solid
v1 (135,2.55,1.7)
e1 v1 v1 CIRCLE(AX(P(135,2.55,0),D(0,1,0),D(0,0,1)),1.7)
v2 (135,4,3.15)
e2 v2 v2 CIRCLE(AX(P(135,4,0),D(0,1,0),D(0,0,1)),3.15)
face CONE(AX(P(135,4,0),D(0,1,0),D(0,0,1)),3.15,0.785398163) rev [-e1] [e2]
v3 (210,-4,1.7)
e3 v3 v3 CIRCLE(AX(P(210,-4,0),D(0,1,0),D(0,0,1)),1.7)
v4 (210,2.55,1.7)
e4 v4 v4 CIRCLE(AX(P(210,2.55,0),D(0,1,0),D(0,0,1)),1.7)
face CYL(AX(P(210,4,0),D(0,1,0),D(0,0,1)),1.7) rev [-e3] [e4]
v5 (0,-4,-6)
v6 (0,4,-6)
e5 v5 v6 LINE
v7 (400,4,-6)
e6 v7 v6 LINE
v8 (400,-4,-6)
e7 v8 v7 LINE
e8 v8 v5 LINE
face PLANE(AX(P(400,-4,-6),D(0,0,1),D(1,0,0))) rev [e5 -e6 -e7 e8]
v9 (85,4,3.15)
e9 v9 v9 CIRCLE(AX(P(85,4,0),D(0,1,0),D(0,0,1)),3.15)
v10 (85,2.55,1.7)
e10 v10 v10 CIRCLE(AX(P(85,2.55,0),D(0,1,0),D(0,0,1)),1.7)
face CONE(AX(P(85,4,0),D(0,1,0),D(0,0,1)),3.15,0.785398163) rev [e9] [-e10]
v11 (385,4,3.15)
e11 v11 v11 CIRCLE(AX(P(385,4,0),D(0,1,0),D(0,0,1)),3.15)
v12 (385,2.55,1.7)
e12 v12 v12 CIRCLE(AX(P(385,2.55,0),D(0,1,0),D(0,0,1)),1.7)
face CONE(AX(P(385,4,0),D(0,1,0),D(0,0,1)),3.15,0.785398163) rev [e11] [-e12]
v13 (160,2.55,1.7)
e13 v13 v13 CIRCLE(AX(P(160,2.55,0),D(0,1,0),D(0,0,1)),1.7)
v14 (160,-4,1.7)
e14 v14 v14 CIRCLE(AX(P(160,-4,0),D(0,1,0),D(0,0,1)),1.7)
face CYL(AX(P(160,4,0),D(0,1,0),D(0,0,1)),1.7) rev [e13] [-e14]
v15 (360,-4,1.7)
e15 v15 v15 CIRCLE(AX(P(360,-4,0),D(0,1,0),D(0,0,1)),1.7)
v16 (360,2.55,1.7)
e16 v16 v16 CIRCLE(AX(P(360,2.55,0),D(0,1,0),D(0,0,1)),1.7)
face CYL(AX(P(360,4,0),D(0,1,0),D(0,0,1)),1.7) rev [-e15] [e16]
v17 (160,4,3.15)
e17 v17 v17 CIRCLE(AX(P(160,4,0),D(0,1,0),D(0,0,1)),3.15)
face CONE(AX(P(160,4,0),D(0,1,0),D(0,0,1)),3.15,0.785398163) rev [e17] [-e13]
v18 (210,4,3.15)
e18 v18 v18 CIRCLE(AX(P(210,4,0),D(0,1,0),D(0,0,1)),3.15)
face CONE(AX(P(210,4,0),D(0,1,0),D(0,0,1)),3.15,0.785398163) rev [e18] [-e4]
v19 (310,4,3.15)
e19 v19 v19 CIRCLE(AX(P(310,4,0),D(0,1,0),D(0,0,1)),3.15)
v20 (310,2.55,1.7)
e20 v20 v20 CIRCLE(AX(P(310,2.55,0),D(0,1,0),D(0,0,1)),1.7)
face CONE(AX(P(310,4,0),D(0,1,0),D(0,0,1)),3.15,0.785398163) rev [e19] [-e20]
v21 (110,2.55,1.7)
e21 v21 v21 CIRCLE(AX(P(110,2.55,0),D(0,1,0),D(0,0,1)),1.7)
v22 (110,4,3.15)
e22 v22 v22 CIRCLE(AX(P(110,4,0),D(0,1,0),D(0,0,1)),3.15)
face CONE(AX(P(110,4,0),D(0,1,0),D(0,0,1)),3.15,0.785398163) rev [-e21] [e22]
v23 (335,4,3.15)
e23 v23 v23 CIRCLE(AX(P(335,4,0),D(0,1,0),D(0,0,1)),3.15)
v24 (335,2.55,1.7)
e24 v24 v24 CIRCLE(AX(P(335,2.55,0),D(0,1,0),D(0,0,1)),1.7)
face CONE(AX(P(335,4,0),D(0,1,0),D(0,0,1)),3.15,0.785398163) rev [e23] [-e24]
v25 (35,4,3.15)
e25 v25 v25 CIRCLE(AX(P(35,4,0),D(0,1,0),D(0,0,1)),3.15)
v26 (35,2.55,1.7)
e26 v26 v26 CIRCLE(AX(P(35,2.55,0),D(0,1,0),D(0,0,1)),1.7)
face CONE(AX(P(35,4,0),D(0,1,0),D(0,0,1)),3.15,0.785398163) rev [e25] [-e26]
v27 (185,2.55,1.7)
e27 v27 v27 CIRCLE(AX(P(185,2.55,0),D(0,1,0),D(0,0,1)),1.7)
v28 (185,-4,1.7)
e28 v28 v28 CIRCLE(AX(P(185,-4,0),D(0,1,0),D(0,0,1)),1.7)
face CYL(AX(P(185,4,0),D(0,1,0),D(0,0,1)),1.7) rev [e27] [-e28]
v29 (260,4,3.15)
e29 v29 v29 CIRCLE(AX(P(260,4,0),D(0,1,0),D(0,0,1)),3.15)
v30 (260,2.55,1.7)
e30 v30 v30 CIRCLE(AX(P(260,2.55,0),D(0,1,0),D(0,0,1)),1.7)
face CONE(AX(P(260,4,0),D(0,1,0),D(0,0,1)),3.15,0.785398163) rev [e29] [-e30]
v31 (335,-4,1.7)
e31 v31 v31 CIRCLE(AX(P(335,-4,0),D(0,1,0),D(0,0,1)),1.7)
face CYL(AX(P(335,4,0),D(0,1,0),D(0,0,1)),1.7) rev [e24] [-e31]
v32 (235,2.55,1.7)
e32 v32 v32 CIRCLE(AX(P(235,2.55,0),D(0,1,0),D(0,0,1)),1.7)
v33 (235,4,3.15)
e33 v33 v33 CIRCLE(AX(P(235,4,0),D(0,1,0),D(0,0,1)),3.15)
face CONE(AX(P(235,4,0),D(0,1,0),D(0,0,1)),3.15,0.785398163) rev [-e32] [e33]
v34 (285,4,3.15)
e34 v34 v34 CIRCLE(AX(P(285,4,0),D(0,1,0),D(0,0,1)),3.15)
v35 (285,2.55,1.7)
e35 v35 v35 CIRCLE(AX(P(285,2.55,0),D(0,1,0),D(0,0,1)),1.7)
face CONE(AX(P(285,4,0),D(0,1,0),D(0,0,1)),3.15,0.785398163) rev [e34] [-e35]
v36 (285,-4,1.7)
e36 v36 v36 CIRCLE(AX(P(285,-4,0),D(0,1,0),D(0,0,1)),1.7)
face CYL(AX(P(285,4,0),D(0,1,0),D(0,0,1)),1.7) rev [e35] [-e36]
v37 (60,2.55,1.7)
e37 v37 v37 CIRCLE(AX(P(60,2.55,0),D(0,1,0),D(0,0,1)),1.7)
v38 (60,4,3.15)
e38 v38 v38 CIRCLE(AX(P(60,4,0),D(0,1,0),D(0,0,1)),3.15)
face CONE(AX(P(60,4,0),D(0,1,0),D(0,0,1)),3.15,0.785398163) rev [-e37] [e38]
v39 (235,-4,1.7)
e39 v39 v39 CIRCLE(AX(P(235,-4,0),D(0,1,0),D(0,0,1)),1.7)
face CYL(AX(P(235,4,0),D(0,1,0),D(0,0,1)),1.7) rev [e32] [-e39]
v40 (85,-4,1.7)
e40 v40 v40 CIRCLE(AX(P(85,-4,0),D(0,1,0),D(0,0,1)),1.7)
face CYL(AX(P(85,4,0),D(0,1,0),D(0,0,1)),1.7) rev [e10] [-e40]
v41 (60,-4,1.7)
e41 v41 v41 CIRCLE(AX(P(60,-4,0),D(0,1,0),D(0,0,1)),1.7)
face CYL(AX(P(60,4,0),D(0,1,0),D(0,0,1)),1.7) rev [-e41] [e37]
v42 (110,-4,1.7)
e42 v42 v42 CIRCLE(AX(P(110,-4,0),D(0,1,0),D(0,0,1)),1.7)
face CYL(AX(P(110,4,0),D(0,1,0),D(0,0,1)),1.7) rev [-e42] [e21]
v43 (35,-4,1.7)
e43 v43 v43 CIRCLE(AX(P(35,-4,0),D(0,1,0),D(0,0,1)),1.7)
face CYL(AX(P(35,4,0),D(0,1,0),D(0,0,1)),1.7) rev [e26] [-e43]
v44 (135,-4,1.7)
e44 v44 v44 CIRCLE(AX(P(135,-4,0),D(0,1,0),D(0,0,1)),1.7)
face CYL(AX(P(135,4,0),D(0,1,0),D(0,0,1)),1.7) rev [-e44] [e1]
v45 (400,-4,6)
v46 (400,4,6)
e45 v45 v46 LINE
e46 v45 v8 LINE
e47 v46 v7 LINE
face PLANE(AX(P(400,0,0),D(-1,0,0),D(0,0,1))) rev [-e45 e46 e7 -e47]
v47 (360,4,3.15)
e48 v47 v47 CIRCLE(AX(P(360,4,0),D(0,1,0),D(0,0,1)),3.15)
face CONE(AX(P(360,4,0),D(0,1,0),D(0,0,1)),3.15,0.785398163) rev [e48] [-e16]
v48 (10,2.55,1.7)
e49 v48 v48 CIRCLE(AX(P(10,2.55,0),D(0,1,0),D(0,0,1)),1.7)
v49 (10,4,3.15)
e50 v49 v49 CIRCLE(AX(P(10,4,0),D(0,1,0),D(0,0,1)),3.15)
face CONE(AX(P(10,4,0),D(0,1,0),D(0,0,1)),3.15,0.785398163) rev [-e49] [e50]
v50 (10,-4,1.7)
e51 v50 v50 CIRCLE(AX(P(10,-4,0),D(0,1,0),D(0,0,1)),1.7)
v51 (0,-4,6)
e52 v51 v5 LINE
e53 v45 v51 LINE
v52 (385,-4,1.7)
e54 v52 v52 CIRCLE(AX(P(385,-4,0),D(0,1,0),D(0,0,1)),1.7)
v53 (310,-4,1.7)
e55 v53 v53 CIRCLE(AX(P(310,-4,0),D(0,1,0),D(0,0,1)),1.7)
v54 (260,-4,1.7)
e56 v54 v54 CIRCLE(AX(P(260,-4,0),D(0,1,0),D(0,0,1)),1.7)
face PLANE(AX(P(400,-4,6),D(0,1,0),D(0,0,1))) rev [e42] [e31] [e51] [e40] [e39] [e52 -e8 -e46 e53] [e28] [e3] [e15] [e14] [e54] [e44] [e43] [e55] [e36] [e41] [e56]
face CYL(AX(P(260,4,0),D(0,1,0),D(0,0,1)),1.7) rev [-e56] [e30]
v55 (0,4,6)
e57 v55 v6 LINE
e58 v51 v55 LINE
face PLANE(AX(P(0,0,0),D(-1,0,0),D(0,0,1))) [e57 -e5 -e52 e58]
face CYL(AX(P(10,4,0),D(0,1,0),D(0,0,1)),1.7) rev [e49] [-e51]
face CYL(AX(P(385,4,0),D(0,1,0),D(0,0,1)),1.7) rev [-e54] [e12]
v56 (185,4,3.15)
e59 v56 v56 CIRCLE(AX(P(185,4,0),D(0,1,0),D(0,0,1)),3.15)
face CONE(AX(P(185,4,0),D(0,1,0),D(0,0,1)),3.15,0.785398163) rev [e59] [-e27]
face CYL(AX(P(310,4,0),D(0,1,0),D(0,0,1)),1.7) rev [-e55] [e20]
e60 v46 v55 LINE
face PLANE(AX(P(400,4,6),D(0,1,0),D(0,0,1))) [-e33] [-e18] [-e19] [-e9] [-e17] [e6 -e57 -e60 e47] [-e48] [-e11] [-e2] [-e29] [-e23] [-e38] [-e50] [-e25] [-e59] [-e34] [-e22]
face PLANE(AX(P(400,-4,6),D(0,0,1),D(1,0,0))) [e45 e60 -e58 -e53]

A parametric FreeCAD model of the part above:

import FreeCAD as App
import Part
import Sketcher
from FreeCAD import Vector
Q = App.Units.Quantity

doc = App.newDocument("Part")
params = doc.addObject("Spreadsheet::Sheet", "Params")
for row, (alias, value) in enumerate([
    ("sketch1_width", "8 mm"),
    ("sketch1_height", "12 mm"),
    ("pad1_length", "400 mm"),
    ("sketch2_diameter", "3.4 mm"),
    ("hole_diameter", "3.4 mm"),
    ("hole_csink_diameter", "6.3 mm"),
    ("linearpattern_pitch", "25 mm"),
], start=1):
    params.set(f"A{row}", alias)
    params.set(f"B{row}", "=" + value)
    params.setAlias(f"B{row}", alias)

body = doc.addObject("PartDesign::Body", "Body")

# Sketch on YZ plane
sketch1 = body.newObject("Sketcher::SketchObject", "Sketch")
sketch1.AttachmentSupport = (doc.getObject("YZ_Plane"), [""])
sketch1.MapMode = "FlatFace"
sketch1.addGeometry([
    Part.LineSegment(Vector(4, 6, 0), Vector(-4, 6, 0)),
    Part.LineSegment(Vector(-4, 6, 0), Vector(-4, -6, 0)),
    Part.LineSegment(Vector(-4, -6, 0), Vector(4, -6, 0)),
    Part.LineSegment(Vector(4, -6, 0), Vector(4, 6, 0)),
], False)
sketch1.addConstraint([
    Sketcher.Constraint("Coincident", 0, 2, 1, 1),
    Sketcher.Constraint("Coincident", 1, 2, 2, 1),
    Sketcher.Constraint("Coincident", 2, 2, 3, 1),
    Sketcher.Constraint("Coincident", 3, 2, 0, 1),
    Sketcher.Constraint("Horizontal", 0),
    Sketcher.Constraint("Vertical", 1),
    Sketcher.Constraint("Horizontal", 2),
    Sketcher.Constraint("Vertical", 3),
    Sketcher.Constraint("Symmetric", 0, 2, 2, 2, -1, 1),
    Sketcher.Constraint("DistanceX", 0, 2, 0, 1, Q("8 mm")),
    Sketcher.Constraint("DistanceY", 1, 2, 1, 1, Q("12 mm")),
])
sketch1.setExpression("Constraints[9]", "Params.sketch1_width")
sketch1.setExpression("Constraints[10]", "Params.sketch1_height")
pad1 = body.newObject("PartDesign::Pad", "Pad")
pad1.Profile = sketch1
pad1.setExpression("Length", "Params.pad1_length")

# Sketch on XZ plane
sketch2 = body.newObject("Sketcher::SketchObject", "Sketch001")
sketch2.AttachmentSupport = (doc.getObject("XZ_Plane"), [""])
sketch2.MapMode = "FlatFace"
sketch2.AttachmentOffset = App.Placement(Vector(0, 0, -4), App.Rotation())
sketch2.addGeometry(Part.Circle(Vector(10, 0, 0), Vector(0, 0, 1), 1.7), False)
sketch2.addConstraint([
    Sketcher.Constraint("PointOnObject", 0, 3, -1),
    Sketcher.Constraint("Diameter", 0, Q("3.4 mm")),
    Sketcher.Constraint("DistanceX", -1, 1, 0, 3, Q("10 mm")),
])
sketch2.setExpression("Constraints[1]", "Params.sketch2_diameter")
doc.recompute()
hole = body.newObject("PartDesign::Hole", "Hole")
hole.Profile = sketch2
hole.ThreadType = "None"
hole.setExpression("Diameter", "Params.hole_diameter")
hole.DepthType = "ThroughAll"
hole.HoleCutType = "Countersink"
hole.setExpression("HoleCutDiameter", "Params.hole_csink_diameter")
hole.HoleCutCountersinkAngle = 90
hole.Reversed = True
doc.recompute()

linearpattern = body.newObject("PartDesign::LinearPattern", "LinearPattern")
linearpattern.Originals = [hole]
linearpattern.Direction = (doc.getObject("X_Axis"), [""])
linearpattern.Mode = "offset"
linearpattern.setExpression("Offset", "Params.linearpattern_pitch")
linearpattern.Occurrences = 16
body.Tip = linearpattern

doc.recompute()
